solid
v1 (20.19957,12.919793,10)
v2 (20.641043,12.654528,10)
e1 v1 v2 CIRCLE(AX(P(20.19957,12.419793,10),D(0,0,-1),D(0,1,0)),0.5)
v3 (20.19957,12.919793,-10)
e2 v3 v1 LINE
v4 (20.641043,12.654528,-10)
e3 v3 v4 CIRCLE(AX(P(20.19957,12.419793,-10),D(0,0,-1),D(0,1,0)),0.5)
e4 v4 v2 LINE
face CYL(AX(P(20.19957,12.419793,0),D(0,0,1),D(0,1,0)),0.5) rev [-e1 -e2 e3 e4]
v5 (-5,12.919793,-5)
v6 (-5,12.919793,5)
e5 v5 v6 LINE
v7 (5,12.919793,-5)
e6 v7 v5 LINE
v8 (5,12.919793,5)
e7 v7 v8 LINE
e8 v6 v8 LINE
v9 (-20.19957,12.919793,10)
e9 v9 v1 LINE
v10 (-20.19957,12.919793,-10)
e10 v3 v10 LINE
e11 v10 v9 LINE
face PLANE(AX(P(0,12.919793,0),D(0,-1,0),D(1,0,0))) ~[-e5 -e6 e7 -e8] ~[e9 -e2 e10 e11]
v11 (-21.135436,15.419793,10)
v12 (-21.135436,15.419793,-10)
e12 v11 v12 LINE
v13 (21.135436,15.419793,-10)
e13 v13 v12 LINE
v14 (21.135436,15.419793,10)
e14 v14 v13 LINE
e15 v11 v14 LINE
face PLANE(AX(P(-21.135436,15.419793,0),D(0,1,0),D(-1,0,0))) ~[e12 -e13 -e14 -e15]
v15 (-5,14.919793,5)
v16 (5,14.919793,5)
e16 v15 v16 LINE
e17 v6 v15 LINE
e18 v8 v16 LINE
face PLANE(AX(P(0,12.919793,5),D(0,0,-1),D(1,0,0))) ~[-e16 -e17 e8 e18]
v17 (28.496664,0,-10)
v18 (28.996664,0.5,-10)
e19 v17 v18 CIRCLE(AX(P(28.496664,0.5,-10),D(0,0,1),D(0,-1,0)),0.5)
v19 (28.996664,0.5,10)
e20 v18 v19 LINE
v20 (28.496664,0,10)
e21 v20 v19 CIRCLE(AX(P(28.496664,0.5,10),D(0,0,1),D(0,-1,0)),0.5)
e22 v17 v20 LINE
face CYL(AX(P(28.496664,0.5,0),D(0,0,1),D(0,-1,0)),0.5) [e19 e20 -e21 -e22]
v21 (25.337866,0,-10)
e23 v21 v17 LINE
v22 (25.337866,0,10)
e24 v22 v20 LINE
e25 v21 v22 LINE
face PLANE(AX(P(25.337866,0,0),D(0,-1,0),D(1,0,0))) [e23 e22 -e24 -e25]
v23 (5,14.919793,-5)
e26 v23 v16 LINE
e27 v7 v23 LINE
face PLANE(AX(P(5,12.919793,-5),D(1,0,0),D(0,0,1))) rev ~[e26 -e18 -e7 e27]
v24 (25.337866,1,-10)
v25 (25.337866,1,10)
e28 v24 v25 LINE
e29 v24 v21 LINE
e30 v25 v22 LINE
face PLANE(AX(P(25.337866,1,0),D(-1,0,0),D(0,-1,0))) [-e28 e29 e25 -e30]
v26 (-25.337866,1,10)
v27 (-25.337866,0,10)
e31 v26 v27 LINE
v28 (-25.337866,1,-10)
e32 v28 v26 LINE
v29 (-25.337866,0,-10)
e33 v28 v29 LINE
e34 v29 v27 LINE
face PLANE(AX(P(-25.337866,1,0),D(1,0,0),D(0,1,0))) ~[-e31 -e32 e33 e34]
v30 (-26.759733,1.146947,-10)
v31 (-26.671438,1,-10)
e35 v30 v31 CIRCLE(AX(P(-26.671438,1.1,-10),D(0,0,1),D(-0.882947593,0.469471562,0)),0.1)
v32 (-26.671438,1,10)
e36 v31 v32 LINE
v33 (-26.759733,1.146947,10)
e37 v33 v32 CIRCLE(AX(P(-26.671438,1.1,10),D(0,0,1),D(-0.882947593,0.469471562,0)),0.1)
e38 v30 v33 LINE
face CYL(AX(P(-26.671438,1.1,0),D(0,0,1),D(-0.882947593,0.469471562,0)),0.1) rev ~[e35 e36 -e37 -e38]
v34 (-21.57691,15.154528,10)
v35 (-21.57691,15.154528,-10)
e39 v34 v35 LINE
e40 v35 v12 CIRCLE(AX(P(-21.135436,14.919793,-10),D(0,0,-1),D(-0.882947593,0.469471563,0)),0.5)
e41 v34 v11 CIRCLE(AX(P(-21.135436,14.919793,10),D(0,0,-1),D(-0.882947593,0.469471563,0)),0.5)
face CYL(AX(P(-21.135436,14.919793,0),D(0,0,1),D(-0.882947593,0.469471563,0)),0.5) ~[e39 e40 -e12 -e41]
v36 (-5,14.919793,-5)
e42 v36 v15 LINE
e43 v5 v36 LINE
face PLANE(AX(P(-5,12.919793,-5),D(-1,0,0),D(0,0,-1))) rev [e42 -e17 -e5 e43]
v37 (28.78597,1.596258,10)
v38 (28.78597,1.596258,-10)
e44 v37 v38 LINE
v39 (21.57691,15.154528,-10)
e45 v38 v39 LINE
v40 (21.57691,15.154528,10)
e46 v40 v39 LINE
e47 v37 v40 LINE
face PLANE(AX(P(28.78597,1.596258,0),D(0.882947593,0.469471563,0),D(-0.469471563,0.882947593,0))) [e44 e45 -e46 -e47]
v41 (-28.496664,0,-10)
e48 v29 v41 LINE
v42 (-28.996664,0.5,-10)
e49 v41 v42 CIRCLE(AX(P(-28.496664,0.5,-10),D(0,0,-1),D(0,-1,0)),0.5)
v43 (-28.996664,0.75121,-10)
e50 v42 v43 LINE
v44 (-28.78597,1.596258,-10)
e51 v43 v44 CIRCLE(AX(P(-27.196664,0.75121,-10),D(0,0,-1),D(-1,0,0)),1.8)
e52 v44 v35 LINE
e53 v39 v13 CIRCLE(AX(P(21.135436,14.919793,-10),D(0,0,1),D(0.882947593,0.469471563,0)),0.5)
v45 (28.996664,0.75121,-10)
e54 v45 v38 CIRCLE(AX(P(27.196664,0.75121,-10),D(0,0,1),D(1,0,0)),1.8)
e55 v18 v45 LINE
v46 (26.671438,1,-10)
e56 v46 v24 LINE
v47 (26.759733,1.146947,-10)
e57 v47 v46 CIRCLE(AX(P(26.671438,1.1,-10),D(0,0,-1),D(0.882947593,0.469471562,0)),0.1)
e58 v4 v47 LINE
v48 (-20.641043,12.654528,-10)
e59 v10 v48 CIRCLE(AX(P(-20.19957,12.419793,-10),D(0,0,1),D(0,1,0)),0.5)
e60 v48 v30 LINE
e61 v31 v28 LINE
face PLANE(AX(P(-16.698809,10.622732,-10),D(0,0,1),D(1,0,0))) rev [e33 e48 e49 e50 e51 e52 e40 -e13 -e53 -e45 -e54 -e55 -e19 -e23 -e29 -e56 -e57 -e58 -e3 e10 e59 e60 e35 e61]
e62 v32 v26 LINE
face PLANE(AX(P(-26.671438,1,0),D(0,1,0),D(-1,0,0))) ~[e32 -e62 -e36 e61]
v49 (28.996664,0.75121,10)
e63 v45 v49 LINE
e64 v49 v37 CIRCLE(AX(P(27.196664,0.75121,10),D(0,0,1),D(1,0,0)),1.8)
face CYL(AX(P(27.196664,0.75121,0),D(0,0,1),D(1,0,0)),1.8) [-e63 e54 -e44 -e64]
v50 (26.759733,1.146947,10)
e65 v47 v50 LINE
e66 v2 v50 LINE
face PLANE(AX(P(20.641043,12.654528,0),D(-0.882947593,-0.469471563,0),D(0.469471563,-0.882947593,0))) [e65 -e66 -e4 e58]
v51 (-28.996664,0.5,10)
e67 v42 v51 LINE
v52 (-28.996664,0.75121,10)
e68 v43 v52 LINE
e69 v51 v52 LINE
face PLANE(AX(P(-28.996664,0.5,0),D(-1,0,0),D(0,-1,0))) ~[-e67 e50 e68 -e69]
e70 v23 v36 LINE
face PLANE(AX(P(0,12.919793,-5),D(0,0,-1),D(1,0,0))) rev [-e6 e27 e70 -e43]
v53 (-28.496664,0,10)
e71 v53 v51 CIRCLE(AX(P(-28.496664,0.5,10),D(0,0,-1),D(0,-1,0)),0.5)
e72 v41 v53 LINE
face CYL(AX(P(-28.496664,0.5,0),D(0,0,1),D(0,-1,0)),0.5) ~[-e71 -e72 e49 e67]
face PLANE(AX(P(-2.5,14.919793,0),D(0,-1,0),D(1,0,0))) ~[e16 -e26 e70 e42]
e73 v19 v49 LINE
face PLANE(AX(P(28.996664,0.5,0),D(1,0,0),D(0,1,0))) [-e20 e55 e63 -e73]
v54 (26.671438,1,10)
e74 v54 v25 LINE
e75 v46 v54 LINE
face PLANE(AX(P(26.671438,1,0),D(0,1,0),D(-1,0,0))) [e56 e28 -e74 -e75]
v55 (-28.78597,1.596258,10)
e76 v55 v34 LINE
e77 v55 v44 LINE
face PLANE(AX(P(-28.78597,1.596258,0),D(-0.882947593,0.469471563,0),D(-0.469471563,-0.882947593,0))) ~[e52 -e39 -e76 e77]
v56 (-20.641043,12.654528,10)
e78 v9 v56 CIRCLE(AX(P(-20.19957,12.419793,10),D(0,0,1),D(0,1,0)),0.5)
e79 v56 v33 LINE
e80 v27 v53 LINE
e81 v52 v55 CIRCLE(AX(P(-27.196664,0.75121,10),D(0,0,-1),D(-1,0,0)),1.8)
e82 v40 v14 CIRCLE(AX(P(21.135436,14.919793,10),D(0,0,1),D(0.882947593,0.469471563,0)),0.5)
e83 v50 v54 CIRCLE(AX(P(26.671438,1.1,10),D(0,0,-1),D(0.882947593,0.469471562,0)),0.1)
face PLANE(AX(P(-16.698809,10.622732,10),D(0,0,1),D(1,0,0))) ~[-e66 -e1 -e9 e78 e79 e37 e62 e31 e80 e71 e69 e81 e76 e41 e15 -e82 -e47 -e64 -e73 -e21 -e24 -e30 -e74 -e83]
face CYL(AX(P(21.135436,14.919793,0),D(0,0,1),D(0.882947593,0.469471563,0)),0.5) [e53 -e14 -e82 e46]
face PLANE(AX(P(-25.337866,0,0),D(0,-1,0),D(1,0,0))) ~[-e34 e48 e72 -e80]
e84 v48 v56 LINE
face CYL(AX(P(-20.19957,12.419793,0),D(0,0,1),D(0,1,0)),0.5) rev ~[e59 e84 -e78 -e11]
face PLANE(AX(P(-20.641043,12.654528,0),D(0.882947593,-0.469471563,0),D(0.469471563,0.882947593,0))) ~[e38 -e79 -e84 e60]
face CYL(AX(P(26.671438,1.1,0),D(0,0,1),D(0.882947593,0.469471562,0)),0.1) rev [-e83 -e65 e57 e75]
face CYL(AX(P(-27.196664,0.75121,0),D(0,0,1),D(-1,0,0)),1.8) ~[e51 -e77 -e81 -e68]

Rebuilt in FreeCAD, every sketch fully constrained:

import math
import FreeCAD as App
import Part
import Sketcher
from FreeCAD import Vector
Q = App.Units.Quantity


def add_polygon(sketch, points):
    """Adds a closed chain of lines whose ends are joined by coincident constraints."""
    first, n = sketch.GeometryCount, len(points)
    for a, b in zip(points, points[1:] + points[:1]):
        sketch.addGeometry(Part.LineSegment(App.Vector(*a, 0), App.Vector(*b, 0)), False)
    for i in range(n):
        sketch.addConstraint(Sketcher.Constraint("Coincident", first + i, 2, first + (i + 1) % n, 1))

doc = App.newDocument("Part")
body = doc.addObject("PartDesign::Body", "Body")

sketch1 = doc.addObject("Sketcher::SketchObject", "Sketch")
body.addObject(sketch1)
sketch1.AttachmentSupport = (doc.XY_Plane, [""])
sketch1.MapMode = "FlatFace"
sketch1.addGeometry(Part.LineSegment(Vector(21.14, 15.42, 0), Vector(0, 15.42, 0)), False)
sketch1.addGeometry(Part.LineSegment(Vector(0, 15.42, 0), Vector(0, 12.92, 0)), False)
sketch1.addGeometry(Part.LineSegment(Vector(0, 12.92, 0), Vector(20.2, 12.92, 0)), False)
sketch1.addGeometry(Part.ArcOfCircle(Part.Circle(Vector(20.2, 12.42, 0), Vector(0, 0, 1), 0.5), math.radians(28), math.radians(90)), False)
sketch1.addGeometry(Part.LineSegment(Vector(20.64, 12.65, 0), Vector(26.76, 1.15, 0)), False)
sketch1.addGeometry(Part.ArcOfCircle(Part.Circle(Vector(26.67, 1.1, 0), Vector(0, 0, 1), 0.1), math.radians(-90), math.radians(28)), False)
sketch1.addGeometry(Part.LineSegment(Vector(26.67, 1, 0), Vector(25.34, 1, 0)), False)
sketch1.addGeometry(Part.LineSegment(Vector(25.34, 1, 0), Vector(25.34, 0, 0)), False)
sketch1.addGeometry(Part.LineSegment(Vector(25.34, 0, 0), Vector(28.5, 0, 0)), False)
sketch1.addGeometry(Part.ArcOfCircle(Part.Circle(Vector(28.5, 0.5, 0), Vector(0, 0, 1), 0.5), math.radians(-90), math.radians(0)), False)
sketch1.addGeometry(Part.LineSegment(Vector(29, 0.5, 0), Vector(29, 0.75, 0)), False)
sketch1.addGeometry(Part.ArcOfCircle(Part.Circle(Vector(27.2, 0.75, 0), Vector(0, 0, 1), 1.8), math.radians(0), math.radians(28)), False)
sketch1.addGeometry(Part.LineSegment(Vector(28.79, 1.6, 0), Vector(21.58, 15.15, 0)), False)
sketch1.addGeometry(Part.ArcOfCircle(Part.Circle(Vector(21.14, 14.92, 0), Vector(0, 0, 1), 0.5), math.radians(28), math.radians(90)), False)
sketch1.addConstraint(Sketcher.Constraint("Coincident", 0, 2, 1, 1))
sketch1.addConstraint(Sketcher.Constraint("Coincident", 1, 2, 2, 1))
sketch1.addConstraint(Sketcher.Constraint("Tangent", 2, 2, 3, 2))
sketch1.addConstraint(Sketcher.Constraint("Tangent", 3, 1, 4, 1))
sketch1.addConstraint(Sketcher.Constraint("Tangent", 4, 2, 5, 2))
sketch1.addConstraint(Sketcher.Constraint("Tangent", 5, 1, 6, 1))
sketch1.addConstraint(Sketcher.Constraint("Coincident", 6, 2, 7, 1))
sketch1.addConstraint(Sketcher.Constraint("Coincident", 7, 2, 8, 1))
sketch1.addConstraint(Sketcher.Constraint("Tangent", 8, 2, 9, 1))
sketch1.addConstraint(Sketcher.Constraint("Tangent", 9, 2, 10, 1))
sketch1.addConstraint(Sketcher.Constraint("Tangent", 10, 2, 11, 1))
sketch1.addConstraint(Sketcher.Constraint("Tangent", 11, 2, 12, 1))
sketch1.addConstraint(Sketcher.Constraint("Tangent", 12, 2, 13, 1))
sketch1.addConstraint(Sketcher.Constraint("Tangent", 13, 2, 0, 1))
sketch1.addConstraint(Sketcher.Constraint("Horizontal", 0))
sketch1.addConstraint(Sketcher.Constraint("Vertical", 1))
sketch1.addConstraint(Sketcher.Constraint("Horizontal", 2))
sketch1.addConstraint(Sketcher.Constraint("Horizontal", 6))
sketch1.addConstraint(Sketcher.Constraint("Vertical", 7))
sketch1.addConstraint(Sketcher.Constraint("Horizontal", 8))
sketch1.addConstraint(Sketcher.Constraint("Vertical", 10))
sketch1.addConstraint(Sketcher.Constraint("Equal", 3, 9))
sketch1.addConstraint(Sketcher.Constraint("Equal", 9, 13))
sketch1.addConstraint(Sketcher.Constraint("PointOnObject", 0, 2, -2))
sketch1.addConstraint(Sketcher.Constraint("PointOnObject", 7, 2, -1))
sketch1.addConstraint(Sketcher.Constraint("Parallel", 4, 12))
sketch1.addConstraint(Sketcher.Constraint("Radius", 3, 0.5))
sketch1.addConstraint(Sketcher.Constraint("Radius", 5, 0.1))
sketch1.addConstraint(Sketcher.Constraint("Radius", 11, 1.8))
sketch1.addConstraint(Sketcher.Constraint("DistanceY", 7, 2, 7, 1, 1.0))
sketch1.addConstraint(Sketcher.Constraint("Angle", 4, Q("-62 deg")))
sketch1.addConstraint(Sketcher.Constraint("DistanceY", 1, 2, 1, 1, 2.5))
sketch1.addConstraint(Sketcher.Constraint("DistanceX", 8, 1, 8, 2, 3.158798))
sketch1.addConstraint(Sketcher.Constraint("DistanceX", 13, 3, 5, 3, 5.536002))
sketch1.addConstraint(Sketcher.Constraint("DistanceX", 2, 1, 2, 2, 20.19957))
sketch1.addConstraint(Sketcher.Constraint("DistanceY", 10, 1, 10, 2, 0.25121))
sketch1.addConstraint(Sketcher.Constraint("Distance", 4, 13.033142))
pad1 = doc.addObject("PartDesign::Pad", "Pad")
body.addObject(pad1)
pad1.Profile = sketch1
pad1.Length = 20
pad1.Midplane = True

sketch2 = doc.addObject("Sketcher::SketchObject", "Sketch001")
body.addObject(sketch2)
sketch2.AttachmentSupport = (doc.XZ_Plane, [""])
sketch2.MapMode = "FlatFace"
sketch2.AttachmentOffset = App.Placement(Vector(0, 0, -12.919793), App.Rotation())
add_polygon(sketch2, [(0, 5), (0, -5), (5, -5), (5, 5)])
sketch2.addConstraint(Sketcher.Constraint("Vertical", 0))
sketch2.addConstraint(Sketcher.Constraint("Horizontal", 1))
sketch2.addConstraint(Sketcher.Constraint("Vertical", 2))
sketch2.addConstraint(Sketcher.Constraint("Horizontal", 3))
sketch2.addConstraint(Sketcher.Constraint("Symmetric", 0, 2, 3, 2, -1, 1))
sketch2.addConstraint(Sketcher.Constraint("DistanceX", 1, 1, 1, 2, 5.0))
sketch2.addConstraint(Sketcher.Constraint("DistanceY", 0, 2, 0, 1, 10.0))
pocket1 = doc.addObject("PartDesign::Pocket", "Pocket")
body.addObject(pocket1)
pocket1.Profile = sketch2
pocket1.Length = 2
body2 = doc.addObject("PartDesign::Body", "Body001")
doc.recompute()

body2.BaseFeature = body
doc.recompute()

mirroring = doc.addObject("Part::Mirroring", "Mirroring")
mirroring.Source = body
mirroring.Base = Vector(0, 0, 0)
mirroring.Normal = Vector(1, 0, 0)
body3 = doc.addObject("PartDesign::Body", "Body002")
body3.BaseFeature = mirroring
boolean = doc.addObject("PartDesign::Boolean", "Boolean")
body2.addObject(boolean)
boolean.Type = "Fuse"
boolean.addObjects([body3])
doc.recompute()
mirroring.Visibility = False

doc.recompute()
